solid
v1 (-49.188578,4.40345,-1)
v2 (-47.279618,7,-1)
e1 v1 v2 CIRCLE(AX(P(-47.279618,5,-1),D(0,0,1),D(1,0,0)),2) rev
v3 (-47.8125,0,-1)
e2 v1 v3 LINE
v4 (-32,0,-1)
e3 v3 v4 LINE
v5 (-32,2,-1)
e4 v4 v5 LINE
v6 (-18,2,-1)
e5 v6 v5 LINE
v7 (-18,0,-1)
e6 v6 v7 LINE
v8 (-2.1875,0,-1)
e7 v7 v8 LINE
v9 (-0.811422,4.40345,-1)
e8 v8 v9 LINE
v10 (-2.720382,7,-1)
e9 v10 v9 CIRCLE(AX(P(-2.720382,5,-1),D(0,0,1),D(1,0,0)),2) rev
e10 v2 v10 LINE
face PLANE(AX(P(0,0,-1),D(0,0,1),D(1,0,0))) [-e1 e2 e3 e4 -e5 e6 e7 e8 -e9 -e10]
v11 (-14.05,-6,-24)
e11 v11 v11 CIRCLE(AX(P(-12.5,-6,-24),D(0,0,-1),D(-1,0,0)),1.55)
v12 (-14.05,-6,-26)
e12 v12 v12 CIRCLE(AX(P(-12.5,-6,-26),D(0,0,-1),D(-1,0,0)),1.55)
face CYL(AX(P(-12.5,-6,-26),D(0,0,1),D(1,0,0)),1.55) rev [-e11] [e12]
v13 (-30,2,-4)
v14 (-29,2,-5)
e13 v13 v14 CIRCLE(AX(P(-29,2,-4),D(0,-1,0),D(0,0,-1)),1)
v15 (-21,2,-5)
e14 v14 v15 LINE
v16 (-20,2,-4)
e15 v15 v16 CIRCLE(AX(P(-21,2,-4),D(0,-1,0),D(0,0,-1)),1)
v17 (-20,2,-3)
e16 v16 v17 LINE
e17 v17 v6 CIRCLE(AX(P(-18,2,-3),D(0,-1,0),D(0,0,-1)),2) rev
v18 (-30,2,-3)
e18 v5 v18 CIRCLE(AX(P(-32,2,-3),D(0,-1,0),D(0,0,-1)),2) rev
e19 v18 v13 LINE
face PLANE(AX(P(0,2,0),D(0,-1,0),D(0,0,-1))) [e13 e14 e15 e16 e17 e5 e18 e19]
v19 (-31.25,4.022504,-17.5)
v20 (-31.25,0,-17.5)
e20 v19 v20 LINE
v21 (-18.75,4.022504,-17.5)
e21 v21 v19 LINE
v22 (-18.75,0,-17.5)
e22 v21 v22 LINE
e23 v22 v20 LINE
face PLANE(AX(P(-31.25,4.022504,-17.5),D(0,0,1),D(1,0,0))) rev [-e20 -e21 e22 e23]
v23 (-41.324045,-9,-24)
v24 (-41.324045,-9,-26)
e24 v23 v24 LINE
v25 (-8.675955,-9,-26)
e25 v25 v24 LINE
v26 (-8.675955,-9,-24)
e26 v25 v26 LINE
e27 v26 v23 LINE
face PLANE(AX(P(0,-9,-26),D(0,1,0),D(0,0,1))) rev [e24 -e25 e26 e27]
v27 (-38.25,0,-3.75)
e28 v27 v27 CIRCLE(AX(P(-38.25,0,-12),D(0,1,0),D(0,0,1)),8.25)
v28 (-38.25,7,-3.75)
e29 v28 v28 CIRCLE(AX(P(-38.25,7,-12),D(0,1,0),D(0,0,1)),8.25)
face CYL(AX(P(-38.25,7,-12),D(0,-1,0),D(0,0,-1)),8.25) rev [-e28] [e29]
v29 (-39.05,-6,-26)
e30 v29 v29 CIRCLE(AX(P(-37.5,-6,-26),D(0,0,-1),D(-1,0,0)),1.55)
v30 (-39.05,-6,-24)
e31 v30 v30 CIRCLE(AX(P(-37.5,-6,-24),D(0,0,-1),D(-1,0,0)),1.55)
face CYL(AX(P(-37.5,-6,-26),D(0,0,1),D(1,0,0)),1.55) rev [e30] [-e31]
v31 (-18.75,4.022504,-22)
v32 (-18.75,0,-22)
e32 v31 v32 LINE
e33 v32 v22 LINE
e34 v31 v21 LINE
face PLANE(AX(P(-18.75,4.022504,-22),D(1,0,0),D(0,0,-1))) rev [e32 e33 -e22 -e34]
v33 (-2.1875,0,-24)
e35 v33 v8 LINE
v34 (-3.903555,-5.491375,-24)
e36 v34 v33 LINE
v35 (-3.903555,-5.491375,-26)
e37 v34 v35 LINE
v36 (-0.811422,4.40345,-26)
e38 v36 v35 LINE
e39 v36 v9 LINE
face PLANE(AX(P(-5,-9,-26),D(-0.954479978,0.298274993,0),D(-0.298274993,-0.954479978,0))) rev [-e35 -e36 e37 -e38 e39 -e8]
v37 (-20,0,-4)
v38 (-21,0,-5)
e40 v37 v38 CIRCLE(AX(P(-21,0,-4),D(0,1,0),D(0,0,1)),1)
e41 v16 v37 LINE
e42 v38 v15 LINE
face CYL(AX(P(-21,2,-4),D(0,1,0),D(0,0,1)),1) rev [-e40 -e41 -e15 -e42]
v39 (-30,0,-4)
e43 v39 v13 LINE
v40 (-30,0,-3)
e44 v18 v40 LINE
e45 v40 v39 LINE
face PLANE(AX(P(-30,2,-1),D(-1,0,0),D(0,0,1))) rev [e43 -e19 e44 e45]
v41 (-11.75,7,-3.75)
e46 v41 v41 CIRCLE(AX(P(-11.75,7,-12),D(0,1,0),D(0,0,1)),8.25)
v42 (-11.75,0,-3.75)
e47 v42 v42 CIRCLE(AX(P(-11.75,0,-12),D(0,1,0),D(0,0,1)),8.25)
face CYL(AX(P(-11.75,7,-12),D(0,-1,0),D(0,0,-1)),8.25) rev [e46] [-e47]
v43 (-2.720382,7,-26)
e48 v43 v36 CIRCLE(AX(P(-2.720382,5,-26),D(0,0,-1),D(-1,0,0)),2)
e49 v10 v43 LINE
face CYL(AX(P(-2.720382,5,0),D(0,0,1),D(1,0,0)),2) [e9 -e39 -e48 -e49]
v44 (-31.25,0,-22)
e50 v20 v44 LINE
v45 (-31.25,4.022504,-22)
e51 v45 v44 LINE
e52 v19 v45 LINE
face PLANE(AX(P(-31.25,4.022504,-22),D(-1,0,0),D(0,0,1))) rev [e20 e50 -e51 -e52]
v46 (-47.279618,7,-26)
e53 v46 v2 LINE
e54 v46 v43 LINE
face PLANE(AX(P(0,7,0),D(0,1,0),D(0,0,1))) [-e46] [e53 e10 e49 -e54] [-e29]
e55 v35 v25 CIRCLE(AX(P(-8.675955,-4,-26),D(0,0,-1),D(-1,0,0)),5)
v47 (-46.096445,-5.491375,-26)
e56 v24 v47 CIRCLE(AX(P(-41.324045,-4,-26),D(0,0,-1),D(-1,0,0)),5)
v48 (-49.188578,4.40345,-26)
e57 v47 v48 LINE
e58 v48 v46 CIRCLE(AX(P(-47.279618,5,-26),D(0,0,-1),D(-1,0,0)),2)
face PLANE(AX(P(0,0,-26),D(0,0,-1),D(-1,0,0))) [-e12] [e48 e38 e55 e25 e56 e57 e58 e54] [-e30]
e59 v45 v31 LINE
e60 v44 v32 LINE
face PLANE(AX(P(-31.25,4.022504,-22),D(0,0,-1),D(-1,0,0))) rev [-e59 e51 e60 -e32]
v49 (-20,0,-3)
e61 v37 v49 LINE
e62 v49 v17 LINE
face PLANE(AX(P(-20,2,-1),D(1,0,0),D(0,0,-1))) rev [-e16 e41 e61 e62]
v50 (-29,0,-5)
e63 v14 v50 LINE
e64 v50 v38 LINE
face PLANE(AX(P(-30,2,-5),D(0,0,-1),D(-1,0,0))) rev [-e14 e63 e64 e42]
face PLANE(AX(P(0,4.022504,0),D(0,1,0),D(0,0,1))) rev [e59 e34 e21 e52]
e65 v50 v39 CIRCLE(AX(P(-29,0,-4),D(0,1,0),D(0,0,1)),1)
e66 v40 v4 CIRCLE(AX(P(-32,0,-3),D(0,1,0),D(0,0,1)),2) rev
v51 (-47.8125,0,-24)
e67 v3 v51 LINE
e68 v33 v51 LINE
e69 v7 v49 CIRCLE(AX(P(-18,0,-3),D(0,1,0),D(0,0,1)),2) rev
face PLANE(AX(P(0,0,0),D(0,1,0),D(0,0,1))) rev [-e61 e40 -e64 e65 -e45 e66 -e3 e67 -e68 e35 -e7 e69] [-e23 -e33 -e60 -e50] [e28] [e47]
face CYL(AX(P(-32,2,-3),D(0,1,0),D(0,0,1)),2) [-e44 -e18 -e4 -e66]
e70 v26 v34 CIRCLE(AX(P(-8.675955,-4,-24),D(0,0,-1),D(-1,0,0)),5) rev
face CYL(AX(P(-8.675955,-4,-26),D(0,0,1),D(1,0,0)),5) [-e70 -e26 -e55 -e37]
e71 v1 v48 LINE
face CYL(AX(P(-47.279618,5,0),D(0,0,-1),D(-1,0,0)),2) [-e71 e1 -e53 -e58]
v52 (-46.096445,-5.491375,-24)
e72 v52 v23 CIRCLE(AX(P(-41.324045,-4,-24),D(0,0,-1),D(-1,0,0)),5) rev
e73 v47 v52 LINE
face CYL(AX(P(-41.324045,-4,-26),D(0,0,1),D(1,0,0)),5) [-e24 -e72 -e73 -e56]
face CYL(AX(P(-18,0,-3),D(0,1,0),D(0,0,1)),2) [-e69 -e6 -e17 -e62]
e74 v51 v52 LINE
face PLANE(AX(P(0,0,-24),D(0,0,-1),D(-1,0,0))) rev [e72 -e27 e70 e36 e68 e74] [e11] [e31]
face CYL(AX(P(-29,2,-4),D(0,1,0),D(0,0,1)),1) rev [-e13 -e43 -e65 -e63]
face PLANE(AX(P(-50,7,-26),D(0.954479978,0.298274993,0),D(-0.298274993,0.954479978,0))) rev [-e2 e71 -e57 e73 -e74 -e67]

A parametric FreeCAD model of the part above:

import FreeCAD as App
import Part
import Sketcher
from FreeCAD import Vector
Q = App.Units.Quantity


def edges_at(feature, points):
    """Names of the edges that pass closest to the given points."""
    edges = feature.Shape.Edges
    near = lambda p: min(range(len(edges)), key=lambda i: edges[i].distToShape(Part.Vertex(*p))[0])
    return sorted({f"Edge{near(p) + 1}" for p in points})

doc = App.newDocument("Part")
body = doc.addObject("PartDesign::Body", "Body")

# Sketch on XZ plane
sketch1 = body.newObject("Sketcher::SketchObject", "Sketch")
sketch1.AttachmentSupport = (doc.getObject("XZ_Plane"), [""])
sketch1.MapMode = "FlatFace"
sketch1.addGeometry(Part.LineSegment(Vector(-50, -24, 0), Vector(-50, 0, 0)), False)
sketch1.addGeometry(Part.LineSegment(Vector(-50, 0, 0), Vector(0, 0, 0)), False)
sketch1.addGeometry(Part.LineSegment(Vector(0, 0, 0), Vector(0, -24, 0)), False)
sketch1.addGeometry(Part.LineSegment(Vector(0, -24, 0), Vector(-50, -24, 0)), False)
sketch1.addGeometry(Part.Circle(Vector(-38, -12, 0), Vector(0, 0, 1), 8), False)
sketch1.addGeometry(Part.Circle(Vector(-12, -12, 0), Vector(0, 0, 1), 8), False)
sketch1.addConstraint(Sketcher.Constraint("Coincident", 0, 2, 1, 1))
sketch1.addConstraint(Sketcher.Constraint("Coincident", 1, 2, 2, 1))
sketch1.addConstraint(Sketcher.Constraint("Coincident", 2, 2, 3, 1))
sketch1.addConstraint(Sketcher.Constraint("Coincident", 3, 2, 0, 1))
sketch1.addConstraint(Sketcher.Constraint("Vertical", 0))
sketch1.addConstraint(Sketcher.Constraint("Horizontal", 1))
sketch1.addConstraint(Sketcher.Constraint("Vertical", 2))
sketch1.addConstraint(Sketcher.Constraint("Horizontal", 3))
sketch1.addConstraint(Sketcher.Constraint("Coincident", 1, 2, -1, 1))
sketch1.addConstraint(Sketcher.Constraint("Equal", 4, 5))
sketch1.addConstraint(Sketcher.Constraint("Horizontal", 4, 3, 5, 3))
sketch1.addConstraint(Sketcher.Constraint("Diameter", 4, Q("16.5 mm")))
sketch1.addConstraint(Sketcher.Constraint("DistanceX", 1, 1, 1, 2, Q("50 mm")))
sketch1.addConstraint(Sketcher.Constraint("DistanceY", 0, 1, 0, 2, Q("24 mm")))
sketch1.addConstraint(Sketcher.Constraint("DistanceY", 4, 3, -1, 1, Q("12 mm")))
sketch1.addConstraint(Sketcher.Constraint("DistanceX", 4, 3, 5, 3, Q("26.5 mm")))
sketch1.addConstraint(Sketcher.Constraint("DistanceX", 4, 3, -1, 1, Q("38.25 mm")))
pad1 = body.newObject("PartDesign::Pad", "Pad")
pad1.Profile = sketch1
pad1.Length = 7
pad1.Reversed = True

# Sketch on XZ plane
sketch2 = body.newObject("Sketcher::SketchObject", "Sketch001")
sketch2.AttachmentSupport = (doc.getObject("XZ_Plane"), [""])
sketch2.MapMode = "FlatFace"
sketch2.addGeometry(Part.LineSegment(Vector(-31.2, -17.5, 0), Vector(-31.2, -22, 0)), False)
sketch2.addGeometry(Part.LineSegment(Vector(-31.2, -22, 0), Vector(-18.8, -22, 0)), False)
sketch2.addGeometry(Part.LineSegment(Vector(-18.8, -22, 0), Vector(-18.8, -17.5, 0)), False)
sketch2.addGeometry(Part.LineSegment(Vector(-18.8, -17.5, 0), Vector(-31.2, -17.5, 0)), False)
sketch2.addConstraint(Sketcher.Constraint("Coincident", 0, 2, 1, 1))
sketch2.addConstraint(Sketcher.Constraint("Coincident", 1, 2, 2, 1))
sketch2.addConstraint(Sketcher.Constraint("Coincident", 2, 2, 3, 1))
sketch2.addConstraint(Sketcher.Constraint("Coincident", 3, 2, 0, 1))
sketch2.addConstraint(Sketcher.Constraint("Vertical", 0))
sketch2.addConstraint(Sketcher.Constraint("Horizontal", 1))
sketch2.addConstraint(Sketcher.Constraint("Vertical", 2))
sketch2.addConstraint(Sketcher.Constraint("Horizontal", 3))
sketch2.addConstraint(Sketcher.Constraint("DistanceX", 1, 1, 1, 2, Q("12.5 mm")))
sketch2.addConstraint(Sketcher.Constraint("DistanceY", 0, 2, 0, 1, Q("4.5 mm")))
sketch2.addConstraint(Sketcher.Constraint("DistanceY", 0, 2, -1, 1, Q("22 mm")))
sketch2.addConstraint(Sketcher.Constraint("DistanceX", 0, 2, -1, 1, Q("31.25 mm")))
pocket1 = body.newObject("PartDesign::Pocket", "Pocket")
pocket1.Profile = sketch2
pocket1.Length = 4.022504

# Sketch on XY plane
sketch3 = body.newObject("Sketcher::SketchObject", "Sketch002")
sketch3.AttachmentSupport = (doc.getObject("XY_Plane"), [""])
sketch3.MapMode = "FlatFace"
sketch3.AttachmentOffset = App.Placement(Vector(0, 0, -24), App.Rotation())
sketch3.addGeometry(Part.LineSegment(Vector(0, 7, 0), Vector(0, -9, 0)), False)
sketch3.addGeometry(Part.LineSegment(Vector(0, -9, 0), Vector(-50, -9, 0)), False)
sketch3.addGeometry(Part.LineSegment(Vector(-50, -9, 0), Vector(-50, 7, 0)), False)
sketch3.addGeometry(Part.LineSegment(Vector(-50, 7, 0), Vector(0, 7, 0)), False)
sketch3.addGeometry(Part.Circle(Vector(-12.5, -6, 0), Vector(0, 0, 1), 1.6), False)
sketch3.addGeometry(Part.Circle(Vector(-37.5, -6, 0), Vector(0, 0, 1), 1.6), False)
sketch3.addConstraint(Sketcher.Constraint("Coincident", 0, 2, 1, 1))
sketch3.addConstraint(Sketcher.Constraint("Coincident", 1, 2, 2, 1))
sketch3.addConstraint(Sketcher.Constraint("Coincident", 2, 2, 3, 1))
sketch3.addConstraint(Sketcher.Constraint("Coincident", 3, 2, 0, 1))
sketch3.addConstraint(Sketcher.Constraint("Vertical", 0))
sketch3.addConstraint(Sketcher.Constraint("Horizontal", 1))
sketch3.addConstraint(Sketcher.Constraint("Vertical", 2))
sketch3.addConstraint(Sketcher.Constraint("Horizontal", 3))
sketch3.addConstraint(Sketcher.Constraint("Equal", 4, 5))
sketch3.addConstraint(Sketcher.Constraint("PointOnObject", 0, 2, -2))
sketch3.addConstraint(Sketcher.Constraint("Horizontal", 4, 3, 5, 3))
sketch3.addConstraint(Sketcher.Constraint("Diameter", 4, Q("3.1 mm")))
sketch3.addConstraint(Sketcher.Constraint("DistanceX", 1, 2, 1, 1, Q("50 mm")))
sketch3.addConstraint(Sketcher.Constraint("DistanceY", 0, 2, 0, 1, Q("16 mm")))
sketch3.addConstraint(Sketcher.Constraint("DistanceY", 4, 3, -1, 1, Q("6 mm")))
sketch3.addConstraint(Sketcher.Constraint("DistanceY", 0, 2, -1, 1, Q("9 mm")))
sketch3.addConstraint(Sketcher.Constraint("DistanceX", 5, 3, 4, 3, Q("25 mm")))
sketch3.addConstraint(Sketcher.Constraint("DistanceX", 4, 3, -1, 1, Q("12.5 mm")))
pad2 = body.newObject("PartDesign::Pad", "Pad001")
pad2.Profile = sketch3
pad2.Length = 2
pad2.Reversed = True

# Sketch on XY plane
sketch4 = body.newObject("Sketcher::SketchObject", "Sketch003")
sketch4.AttachmentSupport = (doc.getObject("XY_Plane"), [""])
sketch4.MapMode = "FlatFace"
sketch4.AttachmentOffset = App.Placement(Vector(0, 0, -24), App.Rotation())
sketch4.addGeometry(Part.LineSegment(Vector(-45, -9, 0), Vector(-50, 7, 0)), False)
sketch4.addGeometry(Part.LineSegment(Vector(-50, 7, 0), Vector(-50, -9, 0)), False)
sketch4.addGeometry(Part.LineSegment(Vector(-50, -9, 0), Vector(-45, -9, 0)), False)
sketch4.addGeometry(Part.LineSegment(Vector(0, -9, 0), Vector(0, 7, 0)), False)
sketch4.addGeometry(Part.LineSegment(Vector(0, 7, 0), Vector(-5, -9, 0)), False)
sketch4.addGeometry(Part.LineSegment(Vector(-5, -9, 0), Vector(0, -9, 0)), False)
sketch4.addConstraint(Sketcher.Constraint("Coincident", 0, 2, 1, 1))
sketch4.addConstraint(Sketcher.Constraint("Coincident", 1, 2, 2, 1))
sketch4.addConstraint(Sketcher.Constraint("Coincident", 2, 2, 0, 1))
sketch4.addConstraint(Sketcher.Constraint("Coincident", 3, 2, 4, 1))
sketch4.addConstraint(Sketcher.Constraint("Coincident", 4, 2, 5, 1))
sketch4.addConstraint(Sketcher.Constraint("Coincident", 5, 2, 3, 1))
sketch4.addConstraint(Sketcher.Constraint("Vertical", 1))
sketch4.addConstraint(Sketcher.Constraint("Horizontal", 2))
sketch4.addConstraint(Sketcher.Constraint("Vertical", 3))
sketch4.addConstraint(Sketcher.Constraint("Horizontal", 5))
sketch4.addConstraint(Sketcher.Constraint("PointOnObject", 3, 2, -2))
sketch4.addConstraint(Sketcher.Constraint("Horizontal", 0, 2, 3, 2))
sketch4.addConstraint(Sketcher.Constraint("Horizontal", 2, 2, 4, 2))
sketch4.addConstraint(Sketcher.Constraint("Equal", 2, 5))
sketch4.addConstraint(Sketcher.Constraint("DistanceX", 2, 1, 2, 2, Q("5 mm")))
sketch4.addConstraint(Sketcher.Constraint("DistanceY", 1, 2, 1, 1, Q("16 mm")))
sketch4.addConstraint(Sketcher.Constraint("DistanceX", 0, 2, -1, 1, Q("50 mm")))
sketch4.addConstraint(Sketcher.Constraint("DistanceY", -1, 1, 0, 2, Q("7 mm")))
pocket2 = body.newObject("PartDesign::Pocket", "Pocket001")
pocket2.Profile = sketch4
pocket2.Type = "ThroughAll"
pocket2.Midplane = True
doc.recompute()

fillet = body.newObject("PartDesign::Fillet", "Fillet")
fillet.Base = (pocket2, edges_at(pocket2, [(-45, -9, -25), (-5, -9, -25)]))
fillet.Radius = 5
doc.recompute()

fillet2 = body.newObject("PartDesign::Fillet", "Fillet001")
fillet2.Base = (fillet, edges_at(fillet, [(0, 7, -13), (-50, 7, -13)]))
fillet2.Radius = 2

# Sketch on XY plane
sketch5 = body.newObject("Sketcher::SketchObject", "Sketch004")
sketch5.AttachmentSupport = (doc.getObject("XY_Plane"), [""])
sketch5.MapMode = "FlatFace"
sketch5.addGeometry(Part.LineSegment(Vector(-54, 12, 0), Vector(-54, -11, 0)), False)
sketch5.addGeometry(Part.LineSegment(Vector(-54, -11, 0), Vector(4, -11, 0)), False)
sketch5.addGeometry(Part.LineSegment(Vector(4, -11, 0), Vector(4, 12, 0)), False)
sketch5.addGeometry(Part.LineSegment(Vector(4, 12, 0), Vector(-54, 12, 0)), False)
sketch5.addConstraint(Sketcher.Constraint("Coincident", 0, 2, 1, 1))
sketch5.addConstraint(Sketcher.Constraint("Coincident", 1, 2, 2, 1))
sketch5.addConstraint(Sketcher.Constraint("Coincident", 2, 2, 3, 1))
sketch5.addConstraint(Sketcher.Constraint("Coincident", 3, 2, 0, 1))
sketch5.addConstraint(Sketcher.Constraint("Vertical", 0))
sketch5.addConstraint(Sketcher.Constraint("Horizontal", 1))
sketch5.addConstraint(Sketcher.Constraint("Vertical", 2))
sketch5.addConstraint(Sketcher.Constraint("Horizontal", 3))
sketch5.addConstraint(Sketcher.Constraint("DistanceX", 1, 1, 1, 2, Q("57.112573 mm")))
sketch5.addConstraint(Sketcher.Constraint("DistanceY", 0, 2, 0, 1, Q("23.157417 mm")))
sketch5.addConstraint(Sketcher.Constraint("DistanceX", 0, 2, -1, 1, Q("53.539309 mm")))
sketch5.addConstraint(Sketcher.Constraint("DistanceY", 0, 2, -1, 1, Q("11.065451 mm")))
pocket3 = body.newObject("PartDesign::Pocket", "Pocket002")
pocket3.Profile = sketch5
pocket3.Length = 1

# Sketch on XZ plane
sketch6 = body.newObject("Sketcher::SketchObject", "Sketch005")
sketch6.AttachmentSupport = (doc.getObject("XZ_Plane"), [""])
sketch6.MapMode = "FlatFace"
sketch6.addGeometry(Part.LineSegment(Vector(-30, -1, 0), Vector(-30, -5, 0)), False)
sketch6.addGeometry(Part.LineSegment(Vector(-30, -5, 0), Vector(-20, -5, 0)), False)
sketch6.addGeometry(Part.LineSegment(Vector(-20, -5, 0), Vector(-20, -1, 0)), False)
sketch6.addGeometry(Part.LineSegment(Vector(-20, -1, 0), Vector(-30, -1, 0)), False)
sketch6.addConstraint(Sketcher.Constraint("Coincident", 0, 2, 1, 1))
sketch6.addConstraint(Sketcher.Constraint("Coincident", 1, 2, 2, 1))
sketch6.addConstraint(Sketcher.Constraint("Coincident", 2, 2, 3, 1))
sketch6.addConstraint(Sketcher.Constraint("Coincident", 3, 2, 0, 1))
sketch6.addConstraint(Sketcher.Constraint("Vertical", 0))
sketch6.addConstraint(Sketcher.Constraint("Horizontal", 1))
sketch6.addConstraint(Sketcher.Constraint("Vertical", 2))
sketch6.addConstraint(Sketcher.Constraint("Horizontal", 3))
sketch6.addConstraint(Sketcher.Constraint("DistanceX", 1, 1, 1, 2, Q("10 mm")))
sketch6.addConstraint(Sketcher.Constraint("DistanceY", 0, 2, 0, 1, Q("4 mm")))
sketch6.addConstraint(Sketcher.Constraint("DistanceX", 0, 2, -1, 1, Q("30 mm")))
sketch6.addConstraint(Sketcher.Constraint("DistanceY", 0, 2, -1, 1, Q("5 mm")))
pocket4 = body.newObject("PartDesign::Pocket", "Pocket003")
pocket4.Profile = sketch6
pocket4.Length = 2
doc.recompute()

fillet3 = body.newObject("PartDesign::Fillet", "Fillet002")
fillet3.Base = (pocket4, edges_at(pocket4, [(-30, 1, -5), (-20, 1, -5)]))
fillet3.Radius = 1
doc.recompute()

fillet4 = body.newObject("PartDesign::Fillet", "Fillet003")
fillet4.Base = (fillet3, edges_at(fillet3, [(-30, 1, -1), (-20, 1, -1)]))
fillet4.Radius = 2

doc.recompute()
